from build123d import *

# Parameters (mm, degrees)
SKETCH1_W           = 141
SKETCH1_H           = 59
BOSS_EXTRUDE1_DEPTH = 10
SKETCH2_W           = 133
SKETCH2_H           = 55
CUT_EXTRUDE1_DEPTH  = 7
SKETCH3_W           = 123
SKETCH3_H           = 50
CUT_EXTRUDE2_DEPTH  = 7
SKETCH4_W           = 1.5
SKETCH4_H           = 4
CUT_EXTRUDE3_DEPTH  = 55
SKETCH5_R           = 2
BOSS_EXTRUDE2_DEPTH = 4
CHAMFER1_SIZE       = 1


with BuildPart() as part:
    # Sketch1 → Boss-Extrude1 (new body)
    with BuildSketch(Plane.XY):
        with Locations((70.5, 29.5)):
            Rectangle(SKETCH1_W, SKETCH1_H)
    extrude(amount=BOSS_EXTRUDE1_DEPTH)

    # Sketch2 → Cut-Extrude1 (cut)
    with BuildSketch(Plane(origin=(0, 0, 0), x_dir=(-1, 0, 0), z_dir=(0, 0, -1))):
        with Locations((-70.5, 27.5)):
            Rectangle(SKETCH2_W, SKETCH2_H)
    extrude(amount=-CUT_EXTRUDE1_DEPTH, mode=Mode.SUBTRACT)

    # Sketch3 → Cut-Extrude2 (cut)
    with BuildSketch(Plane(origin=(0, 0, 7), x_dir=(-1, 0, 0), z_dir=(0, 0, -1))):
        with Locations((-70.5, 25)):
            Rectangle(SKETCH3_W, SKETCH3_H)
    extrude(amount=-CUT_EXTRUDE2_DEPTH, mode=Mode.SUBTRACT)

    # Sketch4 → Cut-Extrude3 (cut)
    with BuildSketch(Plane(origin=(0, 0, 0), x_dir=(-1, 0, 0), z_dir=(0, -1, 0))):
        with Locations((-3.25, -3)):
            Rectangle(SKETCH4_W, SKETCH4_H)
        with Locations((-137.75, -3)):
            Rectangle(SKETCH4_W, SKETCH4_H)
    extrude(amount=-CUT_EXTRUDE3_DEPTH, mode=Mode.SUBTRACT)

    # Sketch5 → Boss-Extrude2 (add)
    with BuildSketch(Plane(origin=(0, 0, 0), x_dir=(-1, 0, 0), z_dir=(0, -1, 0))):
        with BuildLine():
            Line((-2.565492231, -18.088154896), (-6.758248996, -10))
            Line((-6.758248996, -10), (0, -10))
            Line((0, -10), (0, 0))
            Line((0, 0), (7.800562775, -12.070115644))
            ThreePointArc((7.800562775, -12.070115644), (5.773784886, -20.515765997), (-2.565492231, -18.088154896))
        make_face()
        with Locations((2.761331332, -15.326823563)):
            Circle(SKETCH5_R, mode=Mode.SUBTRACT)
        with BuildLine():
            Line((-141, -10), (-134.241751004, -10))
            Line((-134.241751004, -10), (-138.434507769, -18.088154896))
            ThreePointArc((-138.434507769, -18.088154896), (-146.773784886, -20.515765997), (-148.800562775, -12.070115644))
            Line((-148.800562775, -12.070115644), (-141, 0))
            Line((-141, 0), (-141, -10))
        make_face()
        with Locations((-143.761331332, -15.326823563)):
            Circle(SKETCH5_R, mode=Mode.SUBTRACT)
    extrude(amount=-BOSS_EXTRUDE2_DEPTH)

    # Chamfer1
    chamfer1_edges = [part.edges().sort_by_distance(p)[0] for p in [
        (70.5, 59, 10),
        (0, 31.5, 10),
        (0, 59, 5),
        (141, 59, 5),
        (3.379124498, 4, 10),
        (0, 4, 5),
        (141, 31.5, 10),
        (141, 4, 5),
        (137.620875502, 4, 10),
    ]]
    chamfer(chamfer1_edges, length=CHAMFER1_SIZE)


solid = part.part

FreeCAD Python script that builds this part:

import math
import FreeCAD as App
import Part
import Sketcher

V = App.Vector


def edges_at(feature, points):
    """Names of the edges that pass closest to the given points."""
    edges = feature.Shape.Edges
    near = lambda p: min(range(len(edges)), key=lambda i: edges[i].distToShape(Part.Vertex(*p))[0])
    return sorted({f"Edge{near(p) + 1}" for p in points})

doc = App.newDocument("Part")
body = doc.addObject("PartDesign::Body", "Body")

# Sketch on XY plane
sketch1 = doc.addObject("Sketcher::SketchObject", "Sketch")
body.addObject(sketch1)
sketch1.AttachmentSupport = (doc.XY_Plane, [""])
sketch1.MapMode = "FlatFace"
sketch1.addGeometry([
    Part.LineSegment(V(0, 59, 0), V(0, 0, 0)),
    Part.LineSegment(V(0, 0, 0), V(141, 0, 0)),
    Part.LineSegment(V(141, 0, 0), V(141, 59, 0)),
    Part.LineSegment(V(141, 59, 0), V(0, 59, 0)),
], False)
sketch1.addConstraint([
    Sketcher.Constraint("Coincident", 0, 2, 1, 1),
    Sketcher.Constraint("Coincident", 1, 2, 2, 1),
    Sketcher.Constraint("Coincident", 2, 2, 3, 1),
    Sketcher.Constraint("Coincident", 3, 2, 0, 1),
    Sketcher.Constraint("Vertical", 0),
    Sketcher.Constraint("Horizontal", 1),
    Sketcher.Constraint("Vertical", 2),
    Sketcher.Constraint("Horizontal", 3),
    Sketcher.Constraint("Coincident", 0, 2, -1, 1),
    Sketcher.Constraint("DistanceX", 1, 1, 1, 2, 141.0),
    Sketcher.Constraint("DistanceY", 0, 2, 0, 1, 59.0),
])
pad1 = doc.addObject("PartDesign::Pad", "Pad")
body.addObject(pad1)
pad1.Profile = sketch1
pad1.Length = 10

# Sketch on XY plane
sketch2 = doc.addObject("Sketcher::SketchObject", "Sketch001")
body.addObject(sketch2)
sketch2.AttachmentSupport = (doc.XY_Plane, [""])
sketch2.MapMode = "FlatFace"
sketch2.addGeometry([
    Part.LineSegment(V(137, 55, 0), V(137, 0, 0)),
    Part.LineSegment(V(137, 0, 0), V(4, 0, 0)),
    Part.LineSegment(V(4, 0, 0), V(4, 55, 0)),
    Part.LineSegment(V(4, 55, 0), V(137, 55, 0)),
], False)
sketch2.addConstraint([
    Sketcher.Constraint("Coincident", 0, 2, 1, 1),
    Sketcher.Constraint("Coincident", 1, 2, 2, 1),
    Sketcher.Constraint("Coincident", 2, 2, 3, 1),
    Sketcher.Constraint("Coincident", 3, 2, 0, 1),
    Sketcher.Constraint("Vertical", 0),
    Sketcher.Constraint("Horizontal", 1),
    Sketcher.Constraint("Vertical", 2),
    Sketcher.Constraint("Horizontal", 3),
    Sketcher.Constraint("PointOnObject", 0, 2, -1),
    Sketcher.Constraint("DistanceX", 1, 2, 1, 1, 133.0),
    Sketcher.Constraint("DistanceY", 0, 2, 0, 1, 55.0),
    Sketcher.Constraint("DistanceX", -1, 1, 0, 2, 137.0),
])
pocket1 = doc.addObject("PartDesign::Pocket", "Pocket")
body.addObject(pocket1)
pocket1.Profile = sketch2
pocket1.Length = 7
pocket1.Reversed = True

# Sketch on XY plane
sketch3 = doc.addObject("Sketcher::SketchObject", "Sketch002")
body.addObject(sketch3)
sketch3.AttachmentSupport = (doc.XY_Plane, [""])
sketch3.MapMode = "FlatFace"
sketch3.AttachmentOffset = App.Placement(V(0, 0, 7), App.Rotation())
sketch3.addGeometry([
    Part.LineSegment(V(132, 50, 0), V(132, 0, 0)),
    Part.LineSegment(V(132, 0, 0), V(9, 0, 0)),
    Part.LineSegment(V(9, 0, 0), V(9, 50, 0)),
    Part.LineSegment(V(9, 50, 0), V(132, 50, 0)),
], False)
sketch3.addConstraint([
    Sketcher.Constraint("Coincident", 0, 2, 1, 1),
    Sketcher.Constraint("Coincident", 1, 2, 2, 1),
    Sketcher.Constraint("Coincident", 2, 2, 3, 1),
    Sketcher.Constraint("Coincident", 3, 2, 0, 1),
    Sketcher.Constraint("Vertical", 0),
    Sketcher.Constraint("Horizontal", 1),
    Sketcher.Constraint("Vertical", 2),
    Sketcher.Constraint("Horizontal", 3),
    Sketcher.Constraint("PointOnObject", 0, 2, -1),
    Sketcher.Constraint("DistanceX", 1, 2, 1, 1, 123.0),
    Sketcher.Constraint("DistanceY", 0, 2, 0, 1, 50.0),
    Sketcher.Constraint("DistanceX", -1, 1, 0, 2, 132.0),
])
pocket2 = doc.addObject("PartDesign::Pocket", "Pocket001")
body.addObject(pocket2)
pocket2.Profile = sketch3
pocket2.Length = 7
pocket2.Reversed = True

# Sketch on XZ plane
sketch4 = doc.addObject("Sketcher::SketchObject", "Sketch003")
body.addObject(sketch4)
sketch4.AttachmentSupport = (doc.XZ_Plane, [""])
sketch4.MapMode = "FlatFace"
sketch4.addGeometry([
    Part.LineSegment(V(4, 1, 0), V(4, 5, 0)),  # 0
    Part.LineSegment(V(4, 5, 0), V(2.5, 5, 0)),  # 1
    Part.LineSegment(V(2.5, 5, 0), V(2.5, 1, 0)),  # 2
    Part.LineSegment(V(2.5, 1, 0), V(4, 1, 0)),  # 3
    Part.LineSegment(V(138.5, 1, 0), V(138.5, 5, 0)),  # 4
    Part.LineSegment(V(138.5, 5, 0), V(137, 5, 0)),  # 5
    Part.LineSegment(V(137, 5, 0), V(137, 1, 0)),  # 6
    Part.LineSegment(V(137, 1, 0), V(138.5, 1, 0)),  # 7
], False)
sketch4.addConstraint([
    Sketcher.Constraint("Coincident", 0, 2, 1, 1),
    Sketcher.Constraint("Coincident", 1, 2, 2, 1),
    Sketcher.Constraint("Coincident", 2, 2, 3, 1),
    Sketcher.Constraint("Coincident", 3, 2, 0, 1),
    Sketcher.Constraint("Coincident", 4, 2, 5, 1),
    Sketcher.Constraint("Coincident", 5, 2, 6, 1),
    Sketcher.Constraint("Coincident", 6, 2, 7, 1),
    Sketcher.Constraint("Coincident", 7, 2, 4, 1),
    Sketcher.Constraint("Vertical", 0),
    Sketcher.Constraint("Horizontal", 1),
    Sketcher.Constraint("Vertical", 2),
    Sketcher.Constraint("Horizontal", 3),
    Sketcher.Constraint("Vertical", 4),
    Sketcher.Constraint("Horizontal", 5),
    Sketcher.Constraint("Vertical", 6),
    Sketcher.Constraint("Horizontal", 7),
    Sketcher.Constraint("Horizontal", 1, 2, 4, 2),
    Sketcher.Constraint("Horizontal", 3, 2, 6, 2),
    Sketcher.Constraint("Equal", 3, 5),
    Sketcher.Constraint("DistanceY", 0, 1, 0, 2, 4.0),
    Sketcher.Constraint("DistanceX", 1, 2, 1, 1, 1.5),
    Sketcher.Constraint("DistanceX", -1, 1, 0, 2, 4.0),
    Sketcher.Constraint("DistanceY", -1, 1, 0, 2, 5.0),
    Sketcher.Constraint("DistanceX", -1, 1, 5, 2, 137.0),
])
pocket3 = doc.addObject("PartDesign::Pocket", "Pocket002")
body.addObject(pocket3)
pocket3.Profile = sketch4
pocket3.Length = 55

# Sketch on XZ plane
sketch5 = doc.addObject("Sketcher::SketchObject", "Sketch004")
body.addObject(sketch5)
sketch5.AttachmentSupport = (doc.XZ_Plane, [""])
sketch5.MapMode = "FlatFace"
sketch5.addGeometry([
    Part.LineSegment(V(6.8, 10, 0), V(2.6, 18.1, 0)),  # 0
    Part.ArcOfCircle(Part.Circle(V(-2.8, 15.3, 0), V(0, 0, 1), 6), math.radians(27), math.radians(213)),  # 1
    Part.LineSegment(V(-7.8, 12.1, 0), V(0, 0, 0)),  # 2
    Part.LineSegment(V(0, 0, 0), V(0, 10, 0)),  # 3
    Part.LineSegment(V(0, 10, 0), V(6.8, 10, 0)),  # 4
    Part.Circle(V(-2.8, 15.3, 0), V(0, 0, 1), 2),  # 5
    Part.LineSegment(V(134.2, 10, 0), V(141, 10, 0)),  # 6
    Part.LineSegment(V(141, 10, 0), V(141, 0, 0)),  # 7
    Part.LineSegment(V(141, 0, 0), V(148.8, 12.1, 0)),  # 8
    Part.ArcOfCircle(Part.Circle(V(143.8, 15.3, 0), V(0, 0, 1), 6), math.radians(-33), math.radians(153)),  # 9
    Part.LineSegment(V(138.4, 18.1, 0), V(134.2, 10, 0)),  # 10
    Part.Circle(V(143.8, 15.3, 0), V(0, 0, 1), 2),  # 11
], False)
sketch5.addConstraint([
    Sketcher.Constraint("Tangent", 0, 2, 1, 1),
    Sketcher.Constraint("Tangent", 1, 2, 2, 1),
    Sketcher.Constraint("Coincident", 2, 2, 3, 1),
    Sketcher.Constraint("Coincident", 3, 2, 4, 1),
    Sketcher.Constraint("Coincident", 4, 2, 0, 1),
    Sketcher.Constraint("Coincident", 6, 2, 7, 1),
    Sketcher.Constraint("Coincident", 7, 2, 8, 1),
    Sketcher.Constraint("Tangent", 8, 2, 9, 1),
    Sketcher.Constraint("Tangent", 9, 2, 10, 1),
    Sketcher.Constraint("Coincident", 10, 2, 6, 1),
    Sketcher.Constraint("Vertical", 3),
    Sketcher.Constraint("Horizontal", 4),
    Sketcher.Constraint("Horizontal", 6),
    Sketcher.Constraint("Vertical", 7),
    Sketcher.Constraint("Coincident", 2, 2, -1, 1),
    Sketcher.Constraint("Coincident", 5, 3, 1, 3),
    Sketcher.Constraint("Coincident", 11, 3, 9, 3),
    Sketcher.Constraint("Equal", 1, 9),
    Sketcher.Constraint("Equal", 5, 11),
    Sketcher.Constraint("PointOnObject", 7, 2, -1),
    Sketcher.Constraint("Horizontal", 5, 3, 9, 3),
    Sketcher.Constraint("Horizontal", 4, 2, 6, 2),
    Sketcher.Constraint("Horizontal", 1, 2, 8, 2),
    Sketcher.Constraint("Horizontal", 0, 2, 9, 2),
    Sketcher.Constraint("Diameter", 5, 4.0),
    Sketcher.Constraint("Radius", 1, 6.0),
    Sketcher.Constraint("DistanceY", 3, 1, 3, 2, 10.0),
    Sketcher.Constraint("DistanceX", -1, 1, 6, 2, 141.0),
    Sketcher.Constraint("DistanceX", 4, 1, 4, 2, 6.758249),
    Sketcher.Constraint("DistanceX", 1, 3, -1, 1, 2.761331),
    Sketcher.Constraint("DistanceY", 1, 3, 0, 2, 2.761331),
])
pad2 = doc.addObject("PartDesign::Pad", "Pad001")
body.addObject(pad2)
pad2.Profile = sketch5
pad2.Length = 4
pad2.Reversed = True
doc.recompute()

chamfer = doc.addObject("PartDesign::Chamfer", "Chamfer")
body.addObject(chamfer)
chamfer.Base = (pad2, edges_at(pad2, [
    (70.5, 59, 10),
    (0, 31.5, 10),
    (0, 59, 5),
    (141, 59, 5),
    (3.379, 4, 10),
    (0, 4, 5),
    (141, 31.5, 10),
    (141, 4, 5),
    (137.621, 4, 10),
]))
chamfer.Size = 1

doc.recompute()
